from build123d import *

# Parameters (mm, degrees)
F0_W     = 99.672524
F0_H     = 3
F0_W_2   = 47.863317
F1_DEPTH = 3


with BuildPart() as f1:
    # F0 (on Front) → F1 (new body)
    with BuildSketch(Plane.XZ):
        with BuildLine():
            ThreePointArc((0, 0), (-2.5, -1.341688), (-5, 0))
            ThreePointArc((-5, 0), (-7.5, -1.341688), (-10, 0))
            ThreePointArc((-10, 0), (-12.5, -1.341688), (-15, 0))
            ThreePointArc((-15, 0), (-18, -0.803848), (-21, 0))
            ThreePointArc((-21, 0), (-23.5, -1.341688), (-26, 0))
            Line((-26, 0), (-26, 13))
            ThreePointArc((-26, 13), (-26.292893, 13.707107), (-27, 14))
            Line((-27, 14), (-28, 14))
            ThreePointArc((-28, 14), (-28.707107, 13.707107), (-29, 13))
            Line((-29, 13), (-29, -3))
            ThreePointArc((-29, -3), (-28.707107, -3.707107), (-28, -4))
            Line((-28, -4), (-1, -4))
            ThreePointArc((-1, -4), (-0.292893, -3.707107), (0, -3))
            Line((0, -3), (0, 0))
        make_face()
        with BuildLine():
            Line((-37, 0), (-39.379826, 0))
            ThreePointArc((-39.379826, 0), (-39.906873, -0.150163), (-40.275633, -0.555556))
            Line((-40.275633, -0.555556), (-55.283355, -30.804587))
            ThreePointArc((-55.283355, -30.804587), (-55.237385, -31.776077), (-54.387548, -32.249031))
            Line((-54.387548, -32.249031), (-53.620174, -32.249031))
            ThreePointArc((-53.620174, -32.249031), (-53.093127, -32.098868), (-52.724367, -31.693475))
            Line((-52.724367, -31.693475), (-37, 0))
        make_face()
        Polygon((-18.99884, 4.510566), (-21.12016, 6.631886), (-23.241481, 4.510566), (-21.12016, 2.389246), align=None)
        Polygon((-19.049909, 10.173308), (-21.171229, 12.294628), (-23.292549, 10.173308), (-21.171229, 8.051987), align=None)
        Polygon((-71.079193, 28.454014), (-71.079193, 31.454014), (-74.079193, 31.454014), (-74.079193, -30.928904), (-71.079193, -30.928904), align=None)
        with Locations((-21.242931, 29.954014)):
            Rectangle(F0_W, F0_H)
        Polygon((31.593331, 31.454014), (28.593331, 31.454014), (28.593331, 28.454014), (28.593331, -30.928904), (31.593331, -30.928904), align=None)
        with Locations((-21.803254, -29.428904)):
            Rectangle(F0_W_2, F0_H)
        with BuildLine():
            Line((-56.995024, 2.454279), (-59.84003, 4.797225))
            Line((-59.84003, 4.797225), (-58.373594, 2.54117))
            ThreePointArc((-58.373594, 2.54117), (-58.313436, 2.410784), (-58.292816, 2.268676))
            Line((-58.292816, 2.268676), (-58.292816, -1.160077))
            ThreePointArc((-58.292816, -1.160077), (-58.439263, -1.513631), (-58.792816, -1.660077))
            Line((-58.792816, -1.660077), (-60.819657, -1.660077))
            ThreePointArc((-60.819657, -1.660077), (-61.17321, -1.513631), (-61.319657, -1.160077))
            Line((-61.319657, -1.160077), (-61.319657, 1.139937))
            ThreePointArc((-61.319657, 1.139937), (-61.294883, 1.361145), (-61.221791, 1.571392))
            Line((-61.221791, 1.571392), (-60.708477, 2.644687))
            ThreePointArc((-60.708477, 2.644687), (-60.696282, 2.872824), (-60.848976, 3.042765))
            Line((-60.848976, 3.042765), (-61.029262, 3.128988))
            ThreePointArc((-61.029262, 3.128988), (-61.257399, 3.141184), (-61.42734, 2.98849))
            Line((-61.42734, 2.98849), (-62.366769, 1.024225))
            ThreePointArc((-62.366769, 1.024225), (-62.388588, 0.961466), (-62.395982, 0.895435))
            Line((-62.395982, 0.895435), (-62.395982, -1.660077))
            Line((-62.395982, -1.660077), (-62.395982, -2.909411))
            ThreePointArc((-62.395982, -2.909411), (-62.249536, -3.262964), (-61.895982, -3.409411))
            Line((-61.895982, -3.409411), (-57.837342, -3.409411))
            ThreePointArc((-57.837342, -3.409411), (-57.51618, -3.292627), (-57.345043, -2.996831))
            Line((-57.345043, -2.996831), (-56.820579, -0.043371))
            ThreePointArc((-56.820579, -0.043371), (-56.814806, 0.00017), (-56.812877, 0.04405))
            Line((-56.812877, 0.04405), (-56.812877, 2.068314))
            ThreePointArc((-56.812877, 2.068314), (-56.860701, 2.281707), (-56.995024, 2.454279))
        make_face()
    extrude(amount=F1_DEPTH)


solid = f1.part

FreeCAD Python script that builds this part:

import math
import FreeCAD as App
import Part
import Sketcher
Q = App.Units.Quantity

doc = App.newDocument("Part")
body = doc.addObject("PartDesign::Body", "Body")
body.AllowCompound = True

# Sketch on XZ plane
sketch1 = body.newObject("Sketcher::SketchObject", "Sketch")
sketch1.AttachmentSupport = (doc.getObject("XZ_Plane"), [""])
sketch1.MapMode = "FlatFace"
sketch1.addGeometry(Part.ArcOfCircle(Part.Circle(App.Vector(-2.5, 1.658312, 0), App.Vector(0, 0, 1), 3), math.radians(-146.442704), math.radians(-33.557296)), False)
sketch1.addGeometry(Part.ArcOfCircle(Part.Circle(App.Vector(-7.5, 1.658312, 0), App.Vector(0, 0, 1), 3), math.radians(-146.442704), math.radians(-33.557296)), False)
sketch1.addGeometry(Part.ArcOfCircle(Part.Circle(App.Vector(-12.5, 1.658312, 0), App.Vector(0, 0, 1), 3), math.radians(-146.442704), math.radians(-33.557296)), False)
sketch1.addGeometry(Part.ArcOfCircle(Part.Circle(App.Vector(-18, 5.196149, 0), App.Vector(0, 0, 1), 5.999997), math.radians(-120.000015), math.radians(-59.999985)), False)
sketch1.addGeometry(Part.ArcOfCircle(Part.Circle(App.Vector(-23.5, 1.658312, 0), App.Vector(0, 0, 1), 3), math.radians(-146.442704), math.radians(-33.557296)), False)
sketch1.addGeometry(Part.LineSegment(App.Vector(-26, 0, 0), App.Vector(-26, 13, 0)), False)
sketch1.addGeometry(Part.ArcOfCircle(Part.Circle(App.Vector(-26.999999, 13.000001, 0), App.Vector(0, 0, 1), 0.999999), math.radians(-0.000043), math.radians(90.000043)), False)
sketch1.addGeometry(Part.LineSegment(App.Vector(-27, 14, 0), App.Vector(-28, 14, 0)), False)
sketch1.addGeometry(Part.ArcOfCircle(Part.Circle(App.Vector(-28.000001, 13.000001, 0), App.Vector(0, 0, 1), 0.999999), math.radians(89.999957), math.radians(180.000043)), False)
sketch1.addGeometry(Part.LineSegment(App.Vector(-29, 13, 0), App.Vector(-29, -3, 0)), False)
sketch1.addGeometry(Part.ArcOfCircle(Part.Circle(App.Vector(-28.000001, -3.000001, 0), App.Vector(0, 0, 1), 0.999999), math.radians(179.999957), math.radians(270.000043)), False)
sketch1.addGeometry(Part.LineSegment(App.Vector(-28, -4, 0), App.Vector(-1, -4, 0)), False)
sketch1.addGeometry(Part.ArcOfCircle(Part.Circle(App.Vector(-0.999999, -3.000001, 0), App.Vector(0, 0, 1), 0.999999), math.radians(-90.000043), math.radians(0.000043)), False)
sketch1.addGeometry(Part.LineSegment(App.Vector(0, -3, 0), App.Vector(0, 0, 0)), False)
sketch1.addGeometry(Part.LineSegment(App.Vector(-37, 0, 0), App.Vector(-39.379826, 0, 0)), False)
sketch1.addGeometry(Part.ArcOfCircle(Part.Circle(App.Vector(-39.379828, -0.999997, 0), App.Vector(0, 0, 1), 0.999997), math.radians(89.99987), math.radians(153.612337)), False)
sketch1.addGeometry(Part.LineSegment(App.Vector(-40.275633, -0.555556, 0), App.Vector(-55.283355, -30.804587, 0)), False)
sketch1.addGeometry(Part.ArcOfCircle(Part.Circle(App.Vector(-54.387548, -31.249031, 0), App.Vector(0, 0, 1), 1), math.radians(153.612239), math.radians(270.00001)), False)
sketch1.addGeometry(Part.LineSegment(App.Vector(-54.387548, -32.249031, 0), App.Vector(-53.620174, -32.249031, 0)), False)
sketch1.addGeometry(Part.ArcOfCircle(Part.Circle(App.Vector(-53.620172, -31.249034, 0), App.Vector(0, 0, 1), 0.999997), math.radians(-90.00013), math.radians(-26.387663)), False)
sketch1.addGeometry(Part.LineSegment(App.Vector(-52.724367, -31.693475, 0), App.Vector(-37, 0, 0)), False)
sketch1.addGeometry(Part.LineSegment(App.Vector(-18.99884, 4.510566, 0), App.Vector(-21.12016, 6.631886, 0)), False)
sketch1.addGeometry(Part.LineSegment(App.Vector(-21.12016, 6.631886, 0), App.Vector(-23.241481, 4.510566, 0)), False)
sketch1.addGeometry(Part.LineSegment(App.Vector(-23.241481, 4.510566, 0), App.Vector(-21.12016, 2.389246, 0)), False)
sketch1.addGeometry(Part.LineSegment(App.Vector(-21.12016, 2.389246, 0), App.Vector(-18.99884, 4.510566, 0)), False)
sketch1.addGeometry(Part.LineSegment(App.Vector(-19.049909, 10.173308, 0), App.Vector(-21.171229, 12.294628, 0)), False)
sketch1.addGeometry(Part.LineSegment(App.Vector(-21.171229, 12.294628, 0), App.Vector(-23.292549, 10.173308, 0)), False)
sketch1.addGeometry(Part.LineSegment(App.Vector(-23.292549, 10.173308, 0), App.Vector(-21.171229, 8.051987, 0)), False)
sketch1.addGeometry(Part.LineSegment(App.Vector(-21.171229, 8.051987, 0), App.Vector(-19.049909, 10.173308, 0)), False)
sketch1.addGeometry(Part.LineSegment(App.Vector(-74.079193, 31.454014, 0), App.Vector(-74.079193, -30.928904, 0)), False)
sketch1.addGeometry(Part.LineSegment(App.Vector(-74.079193, -30.928904, 0), App.Vector(-71.079193, -30.928904, 0)), False)
sketch1.addGeometry(Part.LineSegment(App.Vector(-71.079193, -30.928904, 0), App.Vector(-71.079193, 28.454014, 0)), False)
sketch1.addGeometry(Part.LineSegment(App.Vector(-71.079193, 28.454014, 0), App.Vector(28.593331, 28.454014, 0)), False)
sketch1.addGeometry(Part.LineSegment(App.Vector(28.593331, 28.454014, 0), App.Vector(28.593331, -30.928904, 0)), False)
sketch1.addGeometry(Part.LineSegment(App.Vector(28.593331, -30.928904, 0), App.Vector(31.593331, -30.928904, 0)), False)
sketch1.addGeometry(Part.LineSegment(App.Vector(31.593331, -30.928904, 0), App.Vector(31.593331, 31.454014, 0)), False)
sketch1.addGeometry(Part.LineSegment(App.Vector(31.593331, 31.454014, 0), App.Vector(-74.079193, 31.454014, 0)), False)
sketch1.addGeometry(Part.LineSegment(App.Vector(-45.734913, -27.928904, 0), App.Vector(-45.734913, -30.928904, 0)), False)
sketch1.addGeometry(Part.LineSegment(App.Vector(-45.734913, -30.928904, 0), App.Vector(2.128404, -30.928904, 0)), False)
sketch1.addGeometry(Part.LineSegment(App.Vector(2.128404, -30.928904, 0), App.Vector(2.128404, -27.928904, 0)), False)
sketch1.addGeometry(Part.LineSegment(App.Vector(2.128404, -27.928904, 0), App.Vector(-45.734913, -27.928904, 0)), False)
sketch1.addGeometry(Part.LineSegment(App.Vector(-56.995024, 2.454279, 0), App.Vector(-59.84003, 4.797225, 0)), False)
sketch1.addGeometry(Part.LineSegment(App.Vector(-59.84003, 4.797225, 0), App.Vector(-58.373594, 2.54117, 0)), False)
sketch1.addGeometry(Part.ArcOfCircle(Part.Circle(App.Vector(-58.79282, 2.268675, 0), App.Vector(0, 0, 1), 0.500004), math.radians(0.000117), math.radians(33.023696)), False)
sketch1.addGeometry(Part.LineSegment(App.Vector(-58.292816, 2.268676, 0), App.Vector(-58.292816, -1.160077, 0)), False)
sketch1.addGeometry(Part.ArcOfCircle(Part.Circle(App.Vector(-58.792816, -1.160077, 0), App.Vector(0, 0, 1), 0.5), math.radians(-90.000043), math.radians(0.000043)), False)
sketch1.addGeometry(Part.LineSegment(App.Vector(-58.792816, -1.660077, 0), App.Vector(-60.819657, -1.660077, 0)), False)
sketch1.addGeometry(Part.ArcOfCircle(Part.Circle(App.Vector(-60.819657, -1.160077, 0), App.Vector(0, 0, 1), 0.5), math.radians(179.999957), math.radians(270.000043)), False)
sketch1.addGeometry(Part.LineSegment(App.Vector(-61.319657, -1.160077, 0), App.Vector(-61.319657, 1.139937, 0)), False)
sketch1.addGeometry(Part.ArcOfCircle(Part.Circle(App.Vector(-60.31964, 1.139932, 0), App.Vector(0, 0, 1), 1.000017), math.radians(154.440221), math.radians(179.999729)), False)
sketch1.addGeometry(Part.LineSegment(App.Vector(-61.221791, 1.571392, 0), App.Vector(-60.708477, 2.644687, 0)), False)
sketch1.addGeometry(Part.ArcOfCircle(Part.Circle(App.Vector(-60.977766, 2.773476, 0), App.Vector(0, 0, 1), 0.298502), math.radians(-25.55974), math.radians(64.440035)), False)
sketch1.addGeometry(Part.LineSegment(App.Vector(-60.848976, 3.042765, 0), App.Vector(-61.029262, 3.128988, 0)), False)
sketch1.addGeometry(Part.ArcOfCircle(Part.Circle(App.Vector(-61.158052, 2.859701, 0), App.Vector(0, 0, 1), 0.2985), math.radians(64.439882), math.radians(154.440158)), False)
sketch1.addGeometry(Part.LineSegment(App.Vector(-61.42734, 2.98849, 0), App.Vector(-62.366769, 1.024225, 0)), False)
sketch1.addGeometry(Part.ArcOfCircle(Part.Circle(App.Vector(-62.097515, 0.895443, 0), App.Vector(0, 0, 1), 0.298467), math.radians(154.438589), math.radians(180.001494)), False)
sketch1.addGeometry(Part.LineSegment(App.Vector(-62.395982, 0.895435, 0), App.Vector(-62.395982, -2.909411, 0)), False)
sketch1.addGeometry(Part.ArcOfCircle(Part.Circle(App.Vector(-61.895982, -2.909411, 0), App.Vector(0, 0, 1), 0.5), math.radians(179.999957), math.radians(270.000043)), False)
sketch1.addGeometry(Part.LineSegment(App.Vector(-61.895982, -3.409411, 0), App.Vector(-57.837342, -3.409411, 0)), False)
sketch1.addGeometry(Part.ArcOfCircle(Part.Circle(App.Vector(-57.837344, -2.909408, 0), App.Vector(0, 0, 1), 0.500003), math.radians(-89.999803), math.radians(-10.06961)), False)
sketch1.addGeometry(Part.LineSegment(App.Vector(-57.345043, -2.996831, 0), App.Vector(-56.820579, -0.043371, 0)), False)
sketch1.addGeometry(Part.ArcOfCircle(Part.Circle(App.Vector(-57.3128, 0.044045, 0), App.Vector(0, 0, 1), 0.499923), math.radians(-10.07041), math.radians(0.000619)), False)
sketch1.addGeometry(Part.LineSegment(App.Vector(-56.812877, 0.04405, 0), App.Vector(-56.812877, 2.068314, 0)), False)
sketch1.addGeometry(Part.ArcOfCircle(Part.Circle(App.Vector(-57.312877, 2.068313, 0), App.Vector(0, 0, 1), 0.5), math.radians(0.000084), math.radians(50.527622)), False)
sketch1.addConstraint(Sketcher.Constraint("Coincident", 0, 1, 1, 2))
sketch1.addConstraint(Sketcher.Constraint("Coincident", 1, 1, 2, 2))
sketch1.addConstraint(Sketcher.Constraint("Coincident", 2, 1, 3, 2))
sketch1.addConstraint(Sketcher.Constraint("Coincident", 3, 1, 4, 2))
sketch1.addConstraint(Sketcher.Constraint("Coincident", 4, 1, 5, 1))
sketch1.addConstraint(Sketcher.Constraint("Coincident", 5, 2, 6, 1))
sketch1.addConstraint(Sketcher.Constraint("Coincident", 6, 2, 7, 1))
sketch1.addConstraint(Sketcher.Constraint("Coincident", 7, 2, 8, 1))
sketch1.addConstraint(Sketcher.Constraint("Coincident", 8, 2, 9, 1))
sketch1.addConstraint(Sketcher.Constraint("Coincident", 9, 2, 10, 1))
sketch1.addConstraint(Sketcher.Constraint("Coincident", 10, 2, 11, 1))
sketch1.addConstraint(Sketcher.Constraint("Coincident", 11, 2, 12, 1))
sketch1.addConstraint(Sketcher.Constraint("Coincident", 12, 2, 13, 1))
sketch1.addConstraint(Sketcher.Constraint("Coincident", 13, 2, 0, 2))
sketch1.addConstraint(Sketcher.Constraint("Coincident", 14, 2, 15, 1))
sketch1.addConstraint(Sketcher.Constraint("Coincident", 15, 2, 16, 1))
sketch1.addConstraint(Sketcher.Constraint("Coincident", 16, 2, 17, 1))
sketch1.addConstraint(Sketcher.Constraint("Coincident", 17, 2, 18, 1))
sketch1.addConstraint(Sketcher.Constraint("Coincident", 18, 2, 19, 1))
sketch1.addConstraint(Sketcher.Constraint("Coincident", 19, 2, 20, 1))
sketch1.addConstraint(Sketcher.Constraint("Coincident", 20, 2, 14, 1))
sketch1.addConstraint(Sketcher.Constraint("Coincident", 21, 2, 22, 1))
sketch1.addConstraint(Sketcher.Constraint("Coincident", 22, 2, 23, 1))
sketch1.addConstraint(Sketcher.Constraint("Coincident", 23, 2, 24, 1))
sketch1.addConstraint(Sketcher.Constraint("Coincident", 24, 2, 21, 1))
sketch1.addConstraint(Sketcher.Constraint("Coincident", 25, 2, 26, 1))
sketch1.addConstraint(Sketcher.Constraint("Coincident", 26, 2, 27, 1))
sketch1.addConstraint(Sketcher.Constraint("Coincident", 27, 2, 28, 1))
sketch1.addConstraint(Sketcher.Constraint("Coincident", 28, 2, 25, 1))
sketch1.addConstraint(Sketcher.Constraint("Coincident", 29, 2, 30, 1))
sketch1.addConstraint(Sketcher.Constraint("Coincident", 30, 2, 31, 1))
sketch1.addConstraint(Sketcher.Constraint("Coincident", 31, 2, 32, 1))
sketch1.addConstraint(Sketcher.Constraint("Coincident", 32, 2, 33, 1))
sketch1.addConstraint(Sketcher.Constraint("Coincident", 33, 2, 34, 1))
sketch1.addConstraint(Sketcher.Constraint("Coincident", 34, 2, 35, 1))
sketch1.addConstraint(Sketcher.Constraint("Coincident", 35, 2, 36, 1))
sketch1.addConstraint(Sketcher.Constraint("Coincident", 36, 2, 29, 1))
sketch1.addConstraint(Sketcher.Constraint("Coincident", 37, 2, 38, 1))
sketch1.addConstraint(Sketcher.Constraint("Coincident", 38, 2, 39, 1))
sketch1.addConstraint(Sketcher.Constraint("Coincident", 39, 2, 40, 1))
sketch1.addConstraint(Sketcher.Constraint("Coincident", 40, 2, 37, 1))
sketch1.addConstraint(Sketcher.Constraint("Coincident", 41, 2, 42, 1))
sketch1.addConstraint(Sketcher.Constraint("Coincident", 42, 2, 43, 2))
sketch1.addConstraint(Sketcher.Constraint("Coincident", 43, 1, 44, 1))
sketch1.addConstraint(Sketcher.Constraint("Coincident", 44, 2, 45, 2))
sketch1.addConstraint(Sketcher.Constraint("Coincident", 45, 1, 46, 1))
sketch1.addConstraint(Sketcher.Constraint("Coincident", 46, 2, 47, 2))
sketch1.addConstraint(Sketcher.Constraint("Coincident", 47, 1, 48, 1))
sketch1.addConstraint(Sketcher.Constraint("Coincident", 48, 2, 49, 2))
sketch1.addConstraint(Sketcher.Constraint("Coincident", 49, 1, 50, 1))
sketch1.addConstraint(Sketcher.Constraint("Coincident", 50, 2, 51, 1))
sketch1.addConstraint(Sketcher.Constraint("Coincident", 51, 2, 52, 1))
sketch1.addConstraint(Sketcher.Constraint("Coincident", 52, 2, 53, 1))
sketch1.addConstraint(Sketcher.Constraint("Coincident", 53, 2, 54, 1))
sketch1.addConstraint(Sketcher.Constraint("Coincident", 54, 2, 55, 1))
sketch1.addConstraint(Sketcher.Constraint("Coincident", 55, 2, 56, 1))
sketch1.addConstraint(Sketcher.Constraint("Coincident", 56, 2, 57, 1))
sketch1.addConstraint(Sketcher.Constraint("Coincident", 57, 2, 58, 1))
sketch1.addConstraint(Sketcher.Constraint("Coincident", 58, 2, 59, 1))
sketch1.addConstraint(Sketcher.Constraint("Coincident", 59, 2, 60, 1))
sketch1.addConstraint(Sketcher.Constraint("Coincident", 60, 2, 61, 1))
sketch1.addConstraint(Sketcher.Constraint("Coincident", 61, 2, 62, 1))
sketch1.addConstraint(Sketcher.Constraint("Coincident", 62, 2, 63, 1))
sketch1.addConstraint(Sketcher.Constraint("Coincident", 63, 2, 41, 1))
sketch1.addConstraint(Sketcher.Constraint("Vertical", 5))
sketch1.addConstraint(Sketcher.Constraint("Horizontal", 7))
sketch1.addConstraint(Sketcher.Constraint("Vertical", 9))
sketch1.addConstraint(Sketcher.Constraint("Horizontal", 11))
sketch1.addConstraint(Sketcher.Constraint("Vertical", 13))
sketch1.addConstraint(Sketcher.Constraint("Horizontal", 14))
sketch1.addConstraint(Sketcher.Constraint("Horizontal", 18))
sketch1.addConstraint(Sketcher.Constraint("Vertical", 29))
sketch1.addConstraint(Sketcher.Constraint("Horizontal", 30))
sketch1.addConstraint(Sketcher.Constraint("Vertical", 31))
sketch1.addConstraint(Sketcher.Constraint("Horizontal", 32))
sketch1.addConstraint(Sketcher.Constraint("Vertical", 33))
sketch1.addConstraint(Sketcher.Constraint("Horizontal", 34))
sketch1.addConstraint(Sketcher.Constraint("Vertical", 35))
sketch1.addConstraint(Sketcher.Constraint("Horizontal", 36))
sketch1.addConstraint(Sketcher.Constraint("Vertical", 37))
sketch1.addConstraint(Sketcher.Constraint("Horizontal", 38))
sketch1.addConstraint(Sketcher.Constraint("Vertical", 39))
sketch1.addConstraint(Sketcher.Constraint("Horizontal", 40))
sketch1.addConstraint(Sketcher.Constraint("Vertical", 44))
sketch1.addConstraint(Sketcher.Constraint("Horizontal", 46))
sketch1.addConstraint(Sketcher.Constraint("Vertical", 48))
sketch1.addConstraint(Sketcher.Constraint("Vertical", 56))
sketch1.addConstraint(Sketcher.Constraint("Horizontal", 58))
sketch1.addConstraint(Sketcher.Constraint("Vertical", 62))
sketch1.addConstraint(Sketcher.Constraint("Coincident", 13, 2, -1, 1))
sketch1.addConstraint(Sketcher.Constraint("PointOnObject", 0, 1, -1))
sketch1.addConstraint(Sketcher.Constraint("PointOnObject", 1, 1, -1))
sketch1.addConstraint(Sketcher.Constraint("PointOnObject", 2, 1, -1))
sketch1.addConstraint(Sketcher.Constraint("PointOnObject", 3, 1, -1))
sketch1.addConstraint(Sketcher.Constraint("PointOnObject", 4, 1, -1))
sketch1.addConstraint(Sketcher.Constraint("PointOnObject", 14, 2, -1))
sketch1.addConstraint(Sketcher.Constraint("Radius", 0, Q("3 mm")))
sketch1.addConstraint(Sketcher.Constraint("Radius", 1, Q("3 mm")))
sketch1.addConstraint(Sketcher.Constraint("Radius", 2, Q("3 mm")))
sketch1.addConstraint(Sketcher.Constraint("Radius", 4, Q("3 mm")))
sketch1.addConstraint(Sketcher.Constraint("Radius", 6, Q("0.999999 mm")))
sketch1.addConstraint(Sketcher.Constraint("Radius", 8, Q("0.999999 mm")))
sketch1.addConstraint(Sketcher.Constraint("Radius", 10, Q("0.999999 mm")))
sketch1.addConstraint(Sketcher.Constraint("Radius", 12, Q("0.999999 mm")))
sketch1.addConstraint(Sketcher.Constraint("Radius", 17, Q("1 mm")))
sketch1.addConstraint(Sketcher.Constraint("Radius", 45, Q("0.5 mm")))
sketch1.addConstraint(Sketcher.Constraint("Radius", 47, Q("0.5 mm")))
sketch1.addConstraint(Sketcher.Constraint("Radius", 57, Q("0.5 mm")))
sketch1.addConstraint(Sketcher.Constraint("Radius", 63, Q("0.5 mm")))
sketch1.addConstraint(Sketcher.Constraint("DistanceX", 7, 2, 7, 1, Q("1 mm")))
sketch1.addConstraint(Sketcher.Constraint("DistanceX", 11, 1, 11, 2, Q("27 mm")))
sketch1.addConstraint(Sketcher.Constraint("DistanceX", 30, 1, 30, 2, Q("3 mm")))
sketch1.addConstraint(Sketcher.Constraint("DistanceX", 34, 1, 34, 2, Q("3 mm")))
sketch1.addConstraint(Sketcher.Constraint("DistanceY", 5, 1, 5, 2, Q("13 mm")))
sketch1.addConstraint(Sketcher.Constraint("DistanceY", 9, 2, 9, 1, Q("16 mm")))
sketch1.addConstraint(Sketcher.Constraint("DistanceY", 13, 1, 13, 2, Q("3 mm")))
sketch1.addConstraint(Sketcher.Constraint("DistanceY", 37, 2, 37, 1, Q("3 mm")))
sketch1.addConstraint(Sketcher.Constraint("Distance", 21, Q("3 mm")))
sketch1.addConstraint(Sketcher.Constraint("Distance", 22, Q("3 mm")))
sketch1.addConstraint(Sketcher.Constraint("Distance", 23, Q("3 mm")))
sketch1.addConstraint(Sketcher.Constraint("Distance", 24, Q("3 mm")))
sketch1.addConstraint(Sketcher.Constraint("Distance", 25, Q("3 mm")))
sketch1.addConstraint(Sketcher.Constraint("Distance", 26, Q("3 mm")))
sketch1.addConstraint(Sketcher.Constraint("Distance", 27, Q("3 mm")))
sketch1.addConstraint(Sketcher.Constraint("Distance", 28, Q("3 mm")))
sketch1.addConstraint(Sketcher.Constraint("DistanceX", 3, 3, -1, 1, Q("18 mm")))
sketch1.addConstraint(Sketcher.Constraint("DistanceX", 6, 3, -1, 1, Q("26.999999 mm")))
sketch1.addConstraint(Sketcher.Constraint("DistanceY", -1, 1, 6, 3, Q("13.000001 mm")))
sketch1.addConstraint(Sketcher.Constraint("DistanceX", 8, 3, -1, 1, Q("28.000001 mm")))
sketch1.addConstraint(Sketcher.Constraint("DistanceY", 10, 3, -1, 1, Q("3.000001 mm")))
sketch1.addConstraint(Sketcher.Constraint("DistanceX", 0, 1, -1, 1, Q("5 mm")))
sketch1.addConstraint(Sketcher.Constraint("DistanceX", 1, 1, -1, 1, Q("10 mm")))
sketch1.addConstraint(Sketcher.Constraint("DistanceX", 2, 1, -1, 1, Q("15 mm")))
sketch1.addConstraint(Sketcher.Constraint("DistanceX", 6, 2, -1, 1, Q("27 mm")))
sketch1.addConstraint(Sketcher.Constraint("DistanceY", -1, 1, 8, 2, Q("13 mm")))
sketch1.addConstraint(Sketcher.Constraint("DistanceX", 10, 2, -1, 1, Q("28 mm")))
sketch1.addConstraint(Sketcher.Constraint("DistanceX", 20, 2, -1, 1, Q("37 mm")))
sketch1.addConstraint(Sketcher.Constraint("Radius", 51, Q("0.298502 mm")))
sketch1.addConstraint(Sketcher.Constraint("Radius", 53, Q("0.2985 mm")))
sketch1.addConstraint(Sketcher.Constraint("Radius", 3, Q("5.999997 mm")))
sketch1.addConstraint(Sketcher.Constraint("Radius", 15, Q("0.999997 mm")))
sketch1.addConstraint(Sketcher.Constraint("Radius", 19, Q("0.999997 mm")))
sketch1.addConstraint(Sketcher.Constraint("Radius", 43, Q("0.500004 mm")))
sketch1.addConstraint(Sketcher.Constraint("Radius", 49, Q("1.000017 mm")))
sketch1.addConstraint(Sketcher.Constraint("Radius", 55, Q("0.298467 mm")))
sketch1.addConstraint(Sketcher.Constraint("Radius", 59, Q("0.500003 mm")))
sketch1.addConstraint(Sketcher.Constraint("Radius", 61, Q("0.499923 mm")))
sketch1.addConstraint(Sketcher.Constraint("DistanceX", 46, 2, 46, 1, Q("2.026841 mm")))
sketch1.addConstraint(Sketcher.Constraint("DistanceX", 58, 1, 58, 2, Q("4.05864 mm")))
sketch1.addConstraint(Sketcher.Constraint("DistanceY", 29, 2, 29, 1, Q("62.382918 mm")))
sketch1.addConstraint(Sketcher.Constraint("DistanceY", 31, 1, 31, 2, Q("59.382918 mm")))
sketch1.addConstraint(Sketcher.Constraint("DistanceY", 33, 2, 33, 1, Q("59.382918 mm")))
sketch1.addConstraint(Sketcher.Constraint("DistanceY", -1, 1, 53, 3, Q("2.859701 mm")))
sketch1.addConstraint(Sketcher.Constraint("DistanceX", 61, 3, -1, 1, Q("57.3128 mm")))
sketch1.addConstraint(Sketcher.Constraint("Distance", 50, Q("1.189728 mm")))
sketch1.addConstraint(Sketcher.Constraint("DistanceX", 14, 2, 14, 1, Q("2.379826 mm")))
sketch1.addConstraint(Sketcher.Constraint("DistanceX", 18, 1, 18, 2, Q("0.767374 mm")))
sketch1.addConstraint(Sketcher.Constraint("DistanceX", 32, 1, 32, 2, Q("99.672524 mm")))
sketch1.addConstraint(Sketcher.Constraint("DistanceX", 38, 1, 38, 2, Q("47.863317 mm")))
sketch1.addConstraint(Sketcher.Constraint("DistanceY", 44, 2, 44, 1, Q("3.428753 mm")))
sketch1.addConstraint(Sketcher.Constraint("DistanceY", 48, 1, 48, 2, Q("2.300014 mm")))
sketch1.addConstraint(Sketcher.Constraint("DistanceY", 56, 2, 56, 1, Q("3.804846 mm")))
sketch1.addConstraint(Sketcher.Constraint("DistanceY", 62, 1, 62, 2, Q("2.024264 mm")))
sketch1.addConstraint(Sketcher.Constraint("DistanceX", 15, 3, -1, 1, Q("39.379828 mm")))
sketch1.addConstraint(Sketcher.Constraint("DistanceX", 17, 3, -1, 1, Q("54.387548 mm")))
sketch1.addConstraint(Sketcher.Constraint("DistanceY", 17, 3, -1, 1, Q("31.249031 mm")))
sketch1.addConstraint(Sketcher.Constraint("DistanceX", 19, 3, -1, 1, Q("53.620172 mm")))
sketch1.addConstraint(Sketcher.Constraint("DistanceX", 43, 3, -1, 1, Q("58.79282 mm")))
sketch1.addConstraint(Sketcher.Constraint("DistanceX", 49, 3, -1, 1, Q("60.31964 mm")))
sketch1.addConstraint(Sketcher.Constraint("DistanceY", 57, 3, -1, 1, Q("2.909411 mm")))
sketch1.addConstraint(Sketcher.Constraint("DistanceX", 17, 2, -1, 1, Q("54.387548 mm")))
sketch1.addConstraint(Sketcher.Constraint("DistanceX", 21, 2, -1, 1, Q("21.12016 mm")))
sketch1.addConstraint(Sketcher.Constraint("DistanceX", 22, 2, -1, 1, Q("23.241481 mm")))
sketch1.addConstraint(Sketcher.Constraint("DistanceX", 23, 2, -1, 1, Q("21.12016 mm")))
sketch1.addConstraint(Sketcher.Constraint("DistanceX", 25, 2, -1, 1, Q("21.171229 mm")))
sketch1.addConstraint(Sketcher.Constraint("DistanceX", 26, 2, -1, 1, Q("23.292549 mm")))
sketch1.addConstraint(Sketcher.Constraint("DistanceX", 27, 2, -1, 1, Q("21.171229 mm")))
sketch1.addConstraint(Sketcher.Constraint("DistanceX", -1, 1, 32, 2, Q("28.593331 mm")))
sketch1.addConstraint(Sketcher.Constraint("DistanceX", 41, 2, -1, 1, Q("59.84003 mm")))
sketch1.addConstraint(Sketcher.Constraint("DistanceY", -1, 1, 42, 2, Q("2.54117 mm")))
sketch1.addConstraint(Sketcher.Constraint("DistanceX", 49, 1, -1, 1, Q("61.221791 mm")))
sketch1.addConstraint(Sketcher.Constraint("DistanceY", -1, 1, 49, 1, Q("1.571392 mm")))
sketch1.addConstraint(Sketcher.Constraint("DistanceY", -1, 1, 52, 2, Q("3.128988 mm")))
sketch1.addConstraint(Sketcher.Constraint("DistanceX", 53, 2, -1, 1, Q("61.42734 mm")))
sketch1.addConstraint(Sketcher.Constraint("DistanceY", -1, 1, 53, 2, Q("2.98849 mm")))
sketch1.addConstraint(Sketcher.Constraint("DistanceX", 54, 2, -1, 1, Q("62.366769 mm")))
sketch1.addConstraint(Sketcher.Constraint("DistanceX", 55, 2, -1, 1, Q("62.395982 mm")))
sketch1.addConstraint(Sketcher.Constraint("DistanceY", 56, 2, -1, 1, Q("2.909411 mm")))
sketch1.addConstraint(Sketcher.Constraint("DistanceX", 57, 2, -1, 1, Q("61.895982 mm")))
sketch1.addConstraint(Sketcher.Constraint("DistanceY", 59, 2, -1, 1, Q("2.996831 mm")))
sketch1.addConstraint(Sketcher.Constraint("DistanceX", 60, 2, -1, 1, Q("56.820579 mm")))
sketch1.addConstraint(Sketcher.Constraint("DistanceY", 60, 2, -1, 1, Q("0.043371 mm")))
sketch1.addConstraint(Sketcher.Constraint("DistanceY", -1, 1, 61, 2, Q("0.04405 mm")))
sketch1.addConstraint(Sketcher.Constraint("DistanceY", -1, 1, 63, 2, Q("2.454279 mm")))
sketch1.addConstraint(Sketcher.Constraint("Distance", 16, Q("33.767375 mm")))
sketch1.addConstraint(Sketcher.Constraint("Distance", 20, Q("35.379826 mm")))
sketch1.addConstraint(Sketcher.Constraint("Distance", 41, Q("3.685574 mm")))
sketch1.addConstraint(Sketcher.Constraint("Distance", 42, Q("2.690765 mm")))
sketch1.addConstraint(Sketcher.Constraint("Distance", 52, Q("0.199844 mm")))
sketch1.addConstraint(Sketcher.Constraint("Distance", 54, Q("2.177352 mm")))
sketch1.addConstraint(Sketcher.Constraint("Distance", 60, Q("2.999665 mm")))
sketch1.addConstraint(Sketcher.Constraint("DistanceY", -1, 1, 43, 3, Q("2.268675 mm")))
sketch1.addConstraint(Sketcher.Constraint("DistanceY", 45, 3, -1, 1, Q("1.160077 mm")))
sketch1.addConstraint(Sketcher.Constraint("DistanceX", 51, 3, -1, 1, Q("60.977766 mm")))
sketch1.addConstraint(Sketcher.Constraint("DistanceY", -1, 1, 51, 3, Q("2.773476 mm")))
sketch1.addConstraint(Sketcher.Constraint("DistanceX", 15, 2, -1, 1, Q("40.275633 mm")))
sketch1.addConstraint(Sketcher.Constraint("DistanceY", -1, 1, 21, 2, Q("6.631886 mm")))
sketch1.addConstraint(Sketcher.Constraint("DistanceY", -1, 1, 25, 2, Q("12.294628 mm")))
sketch1.addConstraint(Sketcher.Constraint("DistanceY", 29, 2, -1, 1, Q("30.928904 mm")))
sketch1.addConstraint(Sketcher.Constraint("DistanceX", 37, 2, -1, 1, Q("45.734913 mm")))
sketch1.addConstraint(Sketcher.Constraint("DistanceY", 37, 2, -1, 1, Q("30.928904 mm")))
sketch1.addConstraint(Sketcher.Constraint("DistanceY", -1, 1, 43, 1, Q("2.268676 mm")))
sketch1.addConstraint(Sketcher.Constraint("DistanceX", 45, 1, -1, 1, Q("58.792816 mm")))
sketch1.addConstraint(Sketcher.Constraint("DistanceY", 47, 1, -1, 1, Q("1.160077 mm")))
pad1 = body.newObject("PartDesign::Pad", "Pad")
pad1.Profile = sketch1
pad1.Length = 3

doc.recompute()
